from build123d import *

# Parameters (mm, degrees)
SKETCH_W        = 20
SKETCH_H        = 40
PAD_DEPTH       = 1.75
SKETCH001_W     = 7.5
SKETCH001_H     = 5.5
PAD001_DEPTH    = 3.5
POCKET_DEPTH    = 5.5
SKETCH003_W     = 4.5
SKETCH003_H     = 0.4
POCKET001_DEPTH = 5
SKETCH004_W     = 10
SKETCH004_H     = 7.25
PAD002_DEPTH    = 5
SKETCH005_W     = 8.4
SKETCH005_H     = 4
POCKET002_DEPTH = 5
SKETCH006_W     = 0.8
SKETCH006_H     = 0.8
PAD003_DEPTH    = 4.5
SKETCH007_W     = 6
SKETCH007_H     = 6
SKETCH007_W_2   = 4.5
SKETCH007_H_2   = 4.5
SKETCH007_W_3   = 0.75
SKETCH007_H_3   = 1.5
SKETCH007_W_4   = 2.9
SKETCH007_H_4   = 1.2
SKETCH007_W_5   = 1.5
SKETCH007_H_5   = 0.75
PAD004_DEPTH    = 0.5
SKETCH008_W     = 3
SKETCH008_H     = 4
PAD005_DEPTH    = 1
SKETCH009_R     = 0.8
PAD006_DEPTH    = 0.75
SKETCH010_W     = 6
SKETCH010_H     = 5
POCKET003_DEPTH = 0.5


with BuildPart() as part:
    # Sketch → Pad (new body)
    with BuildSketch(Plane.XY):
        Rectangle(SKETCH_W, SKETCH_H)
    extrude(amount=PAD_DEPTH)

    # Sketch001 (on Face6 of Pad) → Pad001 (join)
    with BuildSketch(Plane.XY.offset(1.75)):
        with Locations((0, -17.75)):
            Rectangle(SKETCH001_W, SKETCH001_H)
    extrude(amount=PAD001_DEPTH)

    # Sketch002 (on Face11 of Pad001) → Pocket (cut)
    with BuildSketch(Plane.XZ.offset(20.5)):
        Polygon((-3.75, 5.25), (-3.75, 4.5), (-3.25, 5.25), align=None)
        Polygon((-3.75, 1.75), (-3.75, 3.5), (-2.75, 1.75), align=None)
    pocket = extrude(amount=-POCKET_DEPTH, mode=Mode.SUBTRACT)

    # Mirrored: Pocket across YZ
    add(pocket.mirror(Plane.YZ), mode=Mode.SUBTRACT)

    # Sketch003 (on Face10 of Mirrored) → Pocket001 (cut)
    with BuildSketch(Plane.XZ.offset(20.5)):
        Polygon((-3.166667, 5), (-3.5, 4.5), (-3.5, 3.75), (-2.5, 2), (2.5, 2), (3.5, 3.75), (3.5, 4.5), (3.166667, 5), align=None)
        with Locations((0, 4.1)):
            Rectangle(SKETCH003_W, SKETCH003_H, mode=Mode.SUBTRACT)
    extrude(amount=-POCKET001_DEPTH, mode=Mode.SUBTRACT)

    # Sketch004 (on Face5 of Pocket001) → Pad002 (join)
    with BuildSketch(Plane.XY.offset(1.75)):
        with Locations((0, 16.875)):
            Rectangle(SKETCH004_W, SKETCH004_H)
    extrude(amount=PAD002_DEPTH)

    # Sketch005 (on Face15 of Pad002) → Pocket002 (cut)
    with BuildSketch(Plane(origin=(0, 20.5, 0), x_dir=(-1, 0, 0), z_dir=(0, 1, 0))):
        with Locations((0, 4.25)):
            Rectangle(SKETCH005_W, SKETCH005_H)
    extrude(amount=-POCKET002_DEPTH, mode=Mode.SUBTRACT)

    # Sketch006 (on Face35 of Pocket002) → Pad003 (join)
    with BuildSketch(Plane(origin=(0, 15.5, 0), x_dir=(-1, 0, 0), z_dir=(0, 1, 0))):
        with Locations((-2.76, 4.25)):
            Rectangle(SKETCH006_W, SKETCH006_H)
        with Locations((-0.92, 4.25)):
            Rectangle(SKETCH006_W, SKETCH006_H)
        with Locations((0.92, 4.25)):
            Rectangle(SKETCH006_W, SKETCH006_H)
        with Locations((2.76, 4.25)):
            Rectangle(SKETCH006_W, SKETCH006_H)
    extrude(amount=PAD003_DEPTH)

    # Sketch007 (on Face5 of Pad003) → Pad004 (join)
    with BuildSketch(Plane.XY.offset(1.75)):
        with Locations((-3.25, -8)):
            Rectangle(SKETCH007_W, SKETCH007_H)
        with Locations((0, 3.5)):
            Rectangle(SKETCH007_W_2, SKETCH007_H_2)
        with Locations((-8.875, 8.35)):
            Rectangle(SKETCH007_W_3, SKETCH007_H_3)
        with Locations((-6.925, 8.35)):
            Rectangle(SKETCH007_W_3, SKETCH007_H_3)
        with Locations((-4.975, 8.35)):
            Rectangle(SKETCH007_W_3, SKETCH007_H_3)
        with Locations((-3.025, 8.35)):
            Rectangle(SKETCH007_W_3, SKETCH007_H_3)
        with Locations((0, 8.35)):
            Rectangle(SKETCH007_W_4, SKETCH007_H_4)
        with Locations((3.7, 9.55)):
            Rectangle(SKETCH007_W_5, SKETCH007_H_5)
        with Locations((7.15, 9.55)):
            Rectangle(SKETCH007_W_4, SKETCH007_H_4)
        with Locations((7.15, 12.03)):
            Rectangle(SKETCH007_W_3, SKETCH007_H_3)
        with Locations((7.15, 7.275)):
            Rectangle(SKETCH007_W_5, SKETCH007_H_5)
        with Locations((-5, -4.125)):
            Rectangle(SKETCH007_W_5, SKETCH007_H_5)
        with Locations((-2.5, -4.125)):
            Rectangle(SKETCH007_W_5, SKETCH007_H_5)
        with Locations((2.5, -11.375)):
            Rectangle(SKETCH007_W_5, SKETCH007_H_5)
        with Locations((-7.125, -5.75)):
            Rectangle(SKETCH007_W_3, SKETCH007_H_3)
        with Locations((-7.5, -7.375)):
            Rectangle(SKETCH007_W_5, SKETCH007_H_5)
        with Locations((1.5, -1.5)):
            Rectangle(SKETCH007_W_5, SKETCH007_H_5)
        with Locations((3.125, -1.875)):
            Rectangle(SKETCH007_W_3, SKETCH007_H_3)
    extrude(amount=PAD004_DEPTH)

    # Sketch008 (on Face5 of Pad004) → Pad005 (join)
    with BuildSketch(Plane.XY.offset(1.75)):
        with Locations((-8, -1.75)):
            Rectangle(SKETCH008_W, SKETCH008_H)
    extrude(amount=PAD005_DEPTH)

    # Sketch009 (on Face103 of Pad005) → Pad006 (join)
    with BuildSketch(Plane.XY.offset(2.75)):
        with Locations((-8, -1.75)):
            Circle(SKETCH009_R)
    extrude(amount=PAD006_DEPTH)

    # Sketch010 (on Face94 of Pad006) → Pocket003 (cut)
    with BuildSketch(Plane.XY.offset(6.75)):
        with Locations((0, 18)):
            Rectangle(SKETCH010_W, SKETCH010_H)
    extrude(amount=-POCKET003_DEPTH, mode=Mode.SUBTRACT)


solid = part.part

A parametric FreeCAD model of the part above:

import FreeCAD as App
import Part
import Sketcher

V = App.Vector
Q = App.Units.Quantity

doc = App.newDocument("Part")
body = doc.addObject("PartDesign::Body", "Body")

# Sketch on XY plane
sketch1 = doc.addObject("Sketcher::SketchObject", "Sketch")
body.addObject(sketch1)
sketch1.AttachmentSupport = (doc.XY_Plane, [""])
sketch1.MapMode = "FlatFace"
sketch1.addGeometry([
    Part.LineSegment(V(-10, 20, 0), V(-10, -20, 0)),
    Part.LineSegment(V(-10, -20, 0), V(10, -20, 0)),
    Part.LineSegment(V(10, -20, 0), V(10, 20, 0)),
    Part.LineSegment(V(10, 20, 0), V(-10, 20, 0)),
], False)
sketch1.addConstraint([
    Sketcher.Constraint("Coincident", 0, 2, 1, 1),
    Sketcher.Constraint("Coincident", 1, 2, 2, 1),
    Sketcher.Constraint("Coincident", 2, 2, 3, 1),
    Sketcher.Constraint("Coincident", 3, 2, 0, 1),
    Sketcher.Constraint("Vertical", 0),
    Sketcher.Constraint("Horizontal", 1),
    Sketcher.Constraint("Vertical", 2),
    Sketcher.Constraint("Horizontal", 3),
    Sketcher.Constraint("Symmetric", 0, 2, 2, 2, -1, 1),
    Sketcher.Constraint("DistanceX", 1, 1, 1, 2, Q("20 mm")),
    Sketcher.Constraint("DistanceY", 0, 2, 0, 1, Q("40 mm")),
])
pad1 = doc.addObject("PartDesign::Pad", "Pad")
body.addObject(pad1)
pad1.Profile = sketch1
pad1.Length = 1.75

# Sketch on XY plane
sketch2 = doc.addObject("Sketcher::SketchObject", "Sketch001")
body.addObject(sketch2)
sketch2.AttachmentSupport = (doc.XY_Plane, [""])
sketch2.MapMode = "FlatFace"
sketch2.AttachmentOffset = App.Placement(V(0, 0, 1.75), App.Rotation())
sketch2.addGeometry([
    Part.LineSegment(V(-4, -15, 0), V(-4, -20, 0)),
    Part.LineSegment(V(-4, -20, 0), V(4, -20, 0)),
    Part.LineSegment(V(4, -20, 0), V(4, -15, 0)),
    Part.LineSegment(V(4, -15, 0), V(-4, -15, 0)),
], False)
sketch2.addConstraint([
    Sketcher.Constraint("Coincident", 0, 2, 1, 1),
    Sketcher.Constraint("Coincident", 1, 2, 2, 1),
    Sketcher.Constraint("Coincident", 2, 2, 3, 1),
    Sketcher.Constraint("Coincident", 3, 2, 0, 1),
    Sketcher.Constraint("Vertical", 0),
    Sketcher.Constraint("Horizontal", 1),
    Sketcher.Constraint("Vertical", 2),
    Sketcher.Constraint("Horizontal", 3),
    Sketcher.Constraint("DistanceX", 1, 1, 1, 2, Q("7.5 mm")),
    Sketcher.Constraint("DistanceY", 0, 2, 0, 1, Q("5.5 mm")),
    Sketcher.Constraint("DistanceY", 2, 2, -1, 1, Q("15 mm")),
    Sketcher.Constraint("DistanceX", 0, 2, -1, 1, Q("3.75 mm")),
])
pad2 = doc.addObject("PartDesign::Pad", "Pad001")
body.addObject(pad2)
pad2.Profile = sketch2
pad2.Length = 3.5

# Sketch on XZ plane
sketch3 = doc.addObject("Sketcher::SketchObject", "Sketch002")
body.addObject(sketch3)
sketch3.AttachmentSupport = (doc.XZ_Plane, [""])
sketch3.MapMode = "FlatFace"
sketch3.AttachmentOffset = App.Placement(V(0, 0, 20.5), App.Rotation())
sketch3.addGeometry([
    Part.LineSegment(V(-3.8, 5.2, 0), V(-3.8, 4.5, 0)),  # 0
    Part.LineSegment(V(-3.8, 4.5, 0), V(-3.2, 5.2, 0)),  # 1
    Part.LineSegment(V(-3.2, 5.2, 0), V(-3.8, 5.2, 0)),  # 2
    Part.LineSegment(V(-3.8, 3.5, 0), V(-3.8, 1.8, 0)),  # 3
    Part.LineSegment(V(-3.8, 1.8, 0), V(-2.8, 1.8, 0)),  # 4
    Part.LineSegment(V(-2.8, 1.8, 0), V(-3.8, 3.5, 0)),  # 5
], False)
sketch3.addConstraint([
    Sketcher.Constraint("Coincident", 0, 2, 1, 1),
    Sketcher.Constraint("Coincident", 1, 2, 2, 1),
    Sketcher.Constraint("Coincident", 2, 2, 0, 1),
    Sketcher.Constraint("Coincident", 3, 2, 4, 1),
    Sketcher.Constraint("Coincident", 4, 2, 5, 1),
    Sketcher.Constraint("Coincident", 5, 2, 3, 1),
    Sketcher.Constraint("Vertical", 0),
    Sketcher.Constraint("Horizontal", 2),
    Sketcher.Constraint("Vertical", 3),
    Sketcher.Constraint("Horizontal", 4),
    Sketcher.Constraint("Vertical", 2, 2, 3, 2),
    Sketcher.Constraint("DistanceX", 4, 1, 4, 2, Q("1 mm")),
    Sketcher.Constraint("DistanceX", 2, 2, 2, 1, Q("0.5 mm")),
    Sketcher.Constraint("DistanceY", 5, 2, 0, 2, Q("1 mm")),
    Sketcher.Constraint("DistanceY", 0, 2, 0, 1, Q("0.75 mm")),
    Sketcher.Constraint("DistanceY", 3, 2, 3, 1, Q("1.75 mm")),
    Sketcher.Constraint("DistanceY", -1, 1, 0, 2, Q("4.5 mm")),
    Sketcher.Constraint("DistanceX", 0, 2, -1, 1, Q("3.75 mm")),
])
pocket1 = doc.addObject("PartDesign::Pocket", "Pocket")
body.addObject(pocket1)
pocket1.Profile = sketch3
pocket1.Length = 5.5
doc.recompute()

mirrored = doc.addObject("PartDesign::Mirrored", "Mirrored")
body.addObject(mirrored)
mirrored.Originals = [pocket1]
mirrored.MirrorPlane = (doc.YZ_Plane, [""])
body.Tip = mirrored

# Sketch on XZ plane
sketch4 = doc.addObject("Sketcher::SketchObject", "Sketch003")
body.addObject(sketch4)
sketch4.AttachmentSupport = (doc.XZ_Plane, [""])
sketch4.MapMode = "FlatFace"
sketch4.AttachmentOffset = App.Placement(V(0, 0, 20.5), App.Rotation())
sketch4.addGeometry([
    Part.LineSegment(V(-3.17, 5, 0), V(-3.5, 4.5, 0)),  # 0
    Part.LineSegment(V(-3.5, 4.5, 0), V(-3.5, 3.75, 0)),  # 1
    Part.LineSegment(V(-3.5, 3.75, 0), V(-2.5, 2, 0)),  # 2
    Part.LineSegment(V(-2.5, 2, 0), V(2.5, 2, 0)),  # 3
    Part.LineSegment(V(2.5, 2, 0), V(3.5, 3.75, 0)),  # 4
    Part.LineSegment(V(3.5, 3.75, 0), V(3.5, 4.5, 0)),  # 5
    Part.LineSegment(V(3.5, 4.5, 0), V(3.17, 5, 0)),  # 6
    Part.LineSegment(V(3.17, 5, 0), V(-3.17, 5, 0)),  # 7
    Part.LineSegment(V(2.25, 3.9, 0), V(-2.25, 3.9, 0)),  # 8
    Part.LineSegment(V(-2.25, 3.9, 0), V(-2.25, 4.3, 0)),  # 9
    Part.LineSegment(V(-2.25, 4.3, 0), V(2.25, 4.3, 0)),  # 10
    Part.LineSegment(V(2.25, 4.3, 0), V(2.25, 3.9, 0)),  # 11
], False)
sketch4.addConstraint([
    Sketcher.Constraint("Coincident", 0, 2, 1, 1),
    Sketcher.Constraint("Coincident", 1, 2, 2, 1),
    Sketcher.Constraint("Coincident", 2, 2, 3, 1),
    Sketcher.Constraint("Coincident", 3, 2, 4, 1),
    Sketcher.Constraint("Coincident", 4, 2, 5, 1),
    Sketcher.Constraint("Coincident", 5, 2, 6, 1),
    Sketcher.Constraint("Coincident", 6, 2, 7, 1),
    Sketcher.Constraint("Coincident", 7, 2, 0, 1),
    Sketcher.Constraint("Coincident", 8, 2, 9, 1),
    Sketcher.Constraint("Coincident", 9, 2, 10, 1),
    Sketcher.Constraint("Coincident", 10, 2, 11, 1),
    Sketcher.Constraint("Coincident", 11, 2, 8, 1),
    Sketcher.Constraint("Vertical", 1),
    Sketcher.Constraint("Horizontal", 3),
    Sketcher.Constraint("Vertical", 5),
    Sketcher.Constraint("Horizontal", 7),
    Sketcher.Constraint("Horizontal", 8),
    Sketcher.Constraint("Vertical", 9),
    Sketcher.Constraint("Horizontal", 10),
    Sketcher.Constraint("Vertical", 11),
    Sketcher.Constraint("Symmetric", 1, 2, 4, 2, -2),
    Sketcher.Constraint("Horizontal", 0, 2, 5, 2),
    Sketcher.Constraint("Equal", 2, 4),
    Sketcher.Constraint("Equal", 0, 6),
    Sketcher.Constraint("DistanceX", 3, 1, 3, 2, Q("5 mm")),
    Sketcher.Constraint("DistanceX", 8, 2, 8, 1, Q("4.5 mm")),
    Sketcher.Constraint("DistanceY", 9, 1, 9, 2, Q("0.4 mm")),
    Sketcher.Constraint("DistanceY", -1, 1, 2, 2, Q("2 mm")),
    Sketcher.Constraint("DistanceY", -1, 1, 6, 2, Q("5 mm")),
    Sketcher.Constraint("DistanceX", 1, 2, 2, 2, Q("1 mm")),
    Sketcher.Constraint("DistanceY", 1, 2, 1, 1, Q("0.75 mm")),
    Sketcher.Constraint("DistanceY", -1, 1, 0, 2, Q("4.5 mm")),
    Sketcher.Constraint("DistanceY", -1, 1, 8, 2, Q("3.9 mm")),
    Sketcher.Constraint("DistanceX", 8, 2, -1, 1, Q("2.25 mm")),
    Sketcher.Constraint("DistanceX", 7, 2, 7, 1, Q("6.333334 mm")),
])
pocket2 = doc.addObject("PartDesign::Pocket", "Pocket001")
body.addObject(pocket2)
pocket2.Profile = sketch4
pocket2.Length = 5

# Sketch on XY plane
sketch5 = doc.addObject("Sketcher::SketchObject", "Sketch004")
body.addObject(sketch5)
sketch5.AttachmentSupport = (doc.XY_Plane, [""])
sketch5.MapMode = "FlatFace"
sketch5.AttachmentOffset = App.Placement(V(0, 0, 1.75), App.Rotation())
sketch5.addGeometry([
    Part.LineSegment(V(-5, 20, 0), V(-5, 13, 0)),
    Part.LineSegment(V(-5, 13, 0), V(5, 13, 0)),
    Part.LineSegment(V(5, 13, 0), V(5, 20, 0)),
    Part.LineSegment(V(5, 20, 0), V(-5, 20, 0)),
], False)
sketch5.addConstraint([
    Sketcher.Constraint("Coincident", 0, 2, 1, 1),
    Sketcher.Constraint("Coincident", 1, 2, 2, 1),
    Sketcher.Constraint("Coincident", 2, 2, 3, 1),
    Sketcher.Constraint("Coincident", 3, 2, 0, 1),
    Sketcher.Constraint("Vertical", 0),
    Sketcher.Constraint("Horizontal", 1),
    Sketcher.Constraint("Vertical", 2),
    Sketcher.Constraint("Horizontal", 3),
    Sketcher.Constraint("DistanceX", 1, 1, 1, 2, Q("10 mm")),
    Sketcher.Constraint("DistanceX", 0, 2, -1, 1, Q("5 mm")),
    Sketcher.Constraint("DistanceY", 0, 2, 0, 1, Q("7.25 mm")),
    Sketcher.Constraint("DistanceY", -1, 1, 2, 2, Q("20.5 mm")),
])
pad3 = doc.addObject("PartDesign::Pad", "Pad002")
body.addObject(pad3)
pad3.Profile = sketch5
pad3.Length = 5

# Sketch on XZ plane
sketch6 = doc.addObject("Sketcher::SketchObject", "Sketch005")
body.addObject(sketch6)
sketch6.AttachmentSupport = (doc.XZ_Plane, [""])
sketch6.MapMode = "FlatFace"
sketch6.AttachmentOffset = App.Placement(V(0, 0, -20.5), App.Rotation())
sketch6.addGeometry([
    Part.LineSegment(V(4.2, 6.2, 0), V(4.2, 2.2, 0)),
    Part.LineSegment(V(4.2, 2.2, 0), V(-4.2, 2.2, 0)),
    Part.LineSegment(V(-4.2, 2.2, 0), V(-4.2, 6.2, 0)),
    Part.LineSegment(V(-4.2, 6.2, 0), V(4.2, 6.2, 0)),
], False)
sketch6.addConstraint([
    Sketcher.Constraint("Coincident", 0, 2, 1, 1),
    Sketcher.Constraint("Coincident", 1, 2, 2, 1),
    Sketcher.Constraint("Coincident", 2, 2, 3, 1),
    Sketcher.Constraint("Coincident", 3, 2, 0, 1),
    Sketcher.Constraint("Vertical", 0),
    Sketcher.Constraint("Horizontal", 1),
    Sketcher.Constraint("Vertical", 2),
    Sketcher.Constraint("Horizontal", 3),
    Sketcher.Constraint("DistanceY", 0, 2, 0, 1, Q("4 mm")),
    Sketcher.Constraint("DistanceX", 1, 2, 1, 1, Q("8.4 mm")),
    Sketcher.Constraint("DistanceX", -1, 1, 0, 2, Q("4.2 mm")),
    Sketcher.Constraint("DistanceY", -1, 1, 0, 2, Q("2.25 mm")),
])
pocket3 = doc.addObject("PartDesign::Pocket", "Pocket002")
body.addObject(pocket3)
pocket3.Profile = sketch6
pocket3.Length = 5
pocket3.Reversed = True

# Sketch on XZ plane
sketch7 = doc.addObject("Sketcher::SketchObject", "Sketch006")
body.addObject(sketch7)
sketch7.AttachmentSupport = (doc.XZ_Plane, [""])
sketch7.MapMode = "FlatFace"
sketch7.AttachmentOffset = App.Placement(V(0, 0, -15.5), App.Rotation())
sketch7.addGeometry([
    Part.LineSegment(V(3.2, 4.7, 0), V(3.2, 3.9, 0)),  # 0
    Part.LineSegment(V(3.2, 3.9, 0), V(2.4, 3.9, 0)),  # 1
    Part.LineSegment(V(2.4, 3.9, 0), V(2.4, 4.7, 0)),  # 2
    Part.LineSegment(V(2.4, 4.7, 0), V(3.2, 4.7, 0)),  # 3
    Part.LineSegment(V(1.3, 4.7, 0), V(1.3, 3.9, 0)),  # 4
    Part.LineSegment(V(1.3, 3.9, 0), V(0.5, 3.9, 0)),  # 5
    Part.LineSegment(V(0.5, 3.9, 0), V(0.5, 4.7, 0)),  # 6
    Part.LineSegment(V(0.5, 4.7, 0), V(1.3, 4.7, 0)),  # 7
    Part.LineSegment(V(-0.5, 4.7, 0), V(-0.5, 3.9, 0)),  # 8
    Part.LineSegment(V(-0.5, 3.9, 0), V(-1.3, 3.9, 0)),  # 9
    Part.LineSegment(V(-1.3, 3.9, 0), V(-1.3, 4.7, 0)),  # 10
    Part.LineSegment(V(-1.3, 4.7, 0), V(-0.5, 4.7, 0)),  # 11
    Part.LineSegment(V(-2.4, 4.7, 0), V(-2.4, 3.9, 0)),  # 12
    Part.LineSegment(V(-2.4, 3.9, 0), V(-3.2, 3.9, 0)),  # 13
    Part.LineSegment(V(-3.2, 3.9, 0), V(-3.2, 4.7, 0)),  # 14
    Part.LineSegment(V(-3.2, 4.7, 0), V(-2.4, 4.7, 0)),  # 15
], False)
sketch7.addConstraint([
    Sketcher.Constraint("Coincident", 0, 2, 1, 1),
    Sketcher.Constraint("Coincident", 1, 2, 2, 1),
    Sketcher.Constraint("Coincident", 2, 2, 3, 1),
    Sketcher.Constraint("Coincident", 3, 2, 0, 1),
    Sketcher.Constraint("Coincident", 4, 2, 5, 1),
    Sketcher.Constraint("Coincident", 5, 2, 6, 1),
    Sketcher.Constraint("Coincident", 6, 2, 7, 1),
    Sketcher.Constraint("Coincident", 7, 2, 4, 1),
    Sketcher.Constraint("Coincident", 8, 2, 9, 1),
    Sketcher.Constraint("Coincident", 9, 2, 10, 1),
    Sketcher.Constraint("Coincident", 10, 2, 11, 1),
    Sketcher.Constraint("Coincident", 11, 2, 8, 1),
    Sketcher.Constraint("Coincident", 12, 2, 13, 1),
    Sketcher.Constraint("Coincident", 13, 2, 14, 1),
    Sketcher.Constraint("Coincident", 14, 2, 15, 1),
    Sketcher.Constraint("Coincident", 15, 2, 12, 1),
    Sketcher.Constraint("Vertical", 0),
    Sketcher.Constraint("Horizontal", 1),
    Sketcher.Constraint("Vertical", 2),
    Sketcher.Constraint("Horizontal", 3),
    Sketcher.Constraint("Vertical", 4),
    Sketcher.Constraint("Horizontal", 5),
    Sketcher.Constraint("Vertical", 6),
    Sketcher.Constraint("Horizontal", 7),
    Sketcher.Constraint("Vertical", 8),
    Sketcher.Constraint("Horizontal", 9),
    Sketcher.Constraint("Vertical", 10),
    Sketcher.Constraint("Horizontal", 11),
    Sketcher.Constraint("Vertical", 12),
    Sketcher.Constraint("Horizontal", 13),
    Sketcher.Constraint("Vertical", 14),
    Sketcher.Constraint("Horizontal", 15),
    Sketcher.Constraint("Symmetric", 5, 2, 8, 2, -2),
    Sketcher.Constraint("Symmetric", 7, 2, 10, 2, -2),
    Sketcher.Constraint("Symmetric", 1, 2, 12, 2, -2),
    Sketcher.Constraint("Symmetric", 3, 2, 14, 2, -2),
    Sketcher.Constraint("Horizontal", 1, 2, 4, 2),
    Sketcher.Constraint("Horizontal", 3, 2, 6, 2),
    Sketcher.Constraint("Equal", 3, 5),
    Sketcher.Constraint("Equal", 15, 0),
    Sketcher.Constraint("DistanceX", 1, 2, 1, 1, Q("0.8 mm")),
    Sketcher.Constraint("DistanceX", -1, 1, 0, 2, Q("3.16 mm")),
    Sketcher.Constraint("DistanceY", -1, 1, 0, 2, Q("3.85 mm")),
    Sketcher.Constraint("DistanceX", -1, 1, 4, 2, Q("1.32 mm")),
])
pad4 = doc.addObject("PartDesign::Pad", "Pad003")
body.addObject(pad4)
pad4.Profile = sketch7
pad4.Length = 4.5
pad4.Reversed = True

# Sketch on XY plane
sketch8 = doc.addObject("Sketcher::SketchObject", "Sketch007")
body.addObject(sketch8)
sketch8.AttachmentSupport = (doc.XY_Plane, [""])
sketch8.MapMode = "FlatFace"
sketch8.AttachmentOffset = App.Placement(V(0, 0, 1.75), App.Rotation())
sketch8.addGeometry([
    Part.LineSegment(V(-6.2, -5, 0), V(-6.2, -11, 0)),  # 0
    Part.LineSegment(V(-6.2, -11, 0), V(-0.2, -11, 0)),  # 1
    Part.LineSegment(V(-0.2, -11, 0), V(-0.2, -5, 0)),  # 2
    Part.LineSegment(V(-0.2, -5, 0), V(-6.2, -5, 0)),  # 3
    Part.LineSegment(V(-2.2, 5.8, 0), V(-2.2, 1.2, 0)),  # 4
    Part.LineSegment(V(-2.2, 1.2, 0), V(2.2, 1.2, 0)),  # 5
    Part.LineSegment(V(2.2, 1.2, 0), V(2.2, 5.8, 0)),  # 6
    Part.LineSegment(V(2.2, 5.8, 0), V(-2.2, 5.8, 0)),  # 7
    Part.LineSegment(V(-9.2, 9.1, 0), V(-9.2, 7.6, 0)),  # 8
    Part.LineSegment(V(-9.2, 7.6, 0), V(-8.5, 7.6, 0)),  # 9
    Part.LineSegment(V(-8.5, 7.6, 0), V(-8.5, 9.1, 0)),  # 10
    Part.LineSegment(V(-8.5, 9.1, 0), V(-9.2, 9.1, 0)),  # 11
    Part.LineSegment(V(-7.3, 9.1, 0), V(-7.3, 7.6, 0)),  # 12
    Part.LineSegment(V(-7.3, 7.6, 0), V(-6.5, 7.6, 0)),  # 13
    Part.LineSegment(V(-6.5, 7.6, 0), V(-6.5, 9.1, 0)),  # 14
    Part.LineSegment(V(-6.5, 9.1, 0), V(-7.3, 9.1, 0)),  # 15
    Part.LineSegment(V(-5.3, 9.1, 0), V(-5.3, 7.6, 0)),  # 16
    Part.LineSegment(V(-5.3, 7.6, 0), V(-4.6, 7.6, 0)),  # 17
    Part.LineSegment(V(-4.6, 7.6, 0), V(-4.6, 9.1, 0)),  # 18
    Part.LineSegment(V(-4.6, 9.1, 0), V(-5.3, 9.1, 0)),  # 19
    Part.LineSegment(V(-3.4, 9.1, 0), V(-3.4, 7.6, 0)),  # 20
    Part.LineSegment(V(-3.4, 7.6, 0), V(-2.6, 7.6, 0)),  # 21
    Part.LineSegment(V(-2.6, 7.6, 0), V(-2.6, 9.1, 0)),  # 22
    Part.LineSegment(V(-2.6, 9.1, 0), V(-3.4, 9.1, 0)),  # 23
    Part.LineSegment(V(-1.4, 8.9, 0), V(-1.4, 7.8, 0)),  # 24
    Part.LineSegment(V(-1.4, 7.8, 0), V(1.4, 7.8, 0)),  # 25
    Part.LineSegment(V(1.4, 7.8, 0), V(1.4, 8.9, 0)),  # 26
    Part.LineSegment(V(1.4, 8.9, 0), V(-1.4, 8.9, 0)),  # 27
    Part.LineSegment(V(3, 9.9, 0), V(3, 9.2, 0)),  # 28
    Part.LineSegment(V(3, 9.2, 0), V(4.5, 9.2, 0)),  # 29
    Part.LineSegment(V(4.5, 9.2, 0), V(4.5, 9.9, 0)),  # 30
    Part.LineSegment(V(4.5, 9.9, 0), V(3, 9.9, 0)),  # 31
    Part.LineSegment(V(5.7, 10.2, 0), V(5.7, 8.9, 0)),  # 32
    Part.LineSegment(V(5.7, 8.9, 0), V(8.6, 8.9, 0)),  # 33
    Part.LineSegment(V(8.6, 8.9, 0), V(8.6, 10.2, 0)),  # 34
    Part.LineSegment(V(8.6, 10.2, 0), V(5.7, 10.2, 0)),  # 35
    Part.LineSegment(V(6.8, 12.8, 0), V(6.8, 11.3, 0)),  # 36
    Part.LineSegment(V(6.8, 11.3, 0), V(7.5, 11.3, 0)),  # 37
    Part.LineSegment(V(7.5, 11.3, 0), V(7.5, 12.8, 0)),  # 38
    Part.LineSegment(V(7.5, 12.8, 0), V(6.8, 12.8, 0)),  # 39
    Part.LineSegment(V(6.4, 7.7, 0), V(6.4, 6.9, 0)),  # 40
    Part.LineSegment(V(6.4, 6.9, 0), V(7.9, 6.9, 0)),  # 41
    Part.LineSegment(V(7.9, 6.9, 0), V(7.9, 7.7, 0)),  # 42
    Part.LineSegment(V(7.9, 7.7, 0), V(6.4, 7.7, 0)),  # 43
    Part.LineSegment(V(-5.8, -3.8, 0), V(-5.8, -4.5, 0)),  # 44
    Part.LineSegment(V(-5.8, -4.5, 0), V(-4.2, -4.5, 0)),  # 45
    Part.LineSegment(V(-4.2, -4.5, 0), V(-4.2, -3.8, 0)),  # 46
    Part.LineSegment(V(-4.2, -3.8, 0), V(-5.8, -3.8, 0)),  # 47
    Part.LineSegment(V(-3.2, -3.8, 0), V(-3.2, -4.5, 0)),  # 48
    Part.LineSegment(V(-3.2, -4.5, 0), V(-1.8, -4.5, 0)),  # 49
    Part.LineSegment(V(-1.8, -4.5, 0), V(-1.8, -3.8, 0)),  # 50
    Part.LineSegment(V(-1.8, -3.8, 0), V(-3.2, -3.8, 0)),  # 51
    Part.LineSegment(V(1.8, -11, 0), V(1.8, -11.8, 0)),  # 52
    Part.LineSegment(V(1.8, -11.8, 0), V(3.2, -11.8, 0)),  # 53
    Part.LineSegment(V(3.2, -11.8, 0), V(3.2, -11, 0)),  # 54
    Part.LineSegment(V(3.2, -11, 0), V(1.8, -11, 0)),  # 55
    Part.LineSegment(V(-7.5, -5, 0), V(-7.5, -6.5, 0)),  # 56
    Part.LineSegment(V(-7.5, -6.5, 0), V(-6.8, -6.5, 0)),  # 57
    Part.LineSegment(V(-6.8, -6.5, 0), V(-6.8, -5, 0)),  # 58
    Part.LineSegment(V(-6.8, -5, 0), V(-7.5, -5, 0)),  # 59
    Part.LineSegment(V(-8.2, -7, 0), V(-8.2, -7.8, 0)),  # 60
    Part.LineSegment(V(-8.2, -7.8, 0), V(-6.8, -7.8, 0)),  # 61
    Part.LineSegment(V(-6.8, -7.8, 0), V(-6.8, -7, 0)),  # 62
    Part.LineSegment(V(-6.8, -7, 0), V(-8.2, -7, 0)),  # 63
    Part.LineSegment(V(0.8, -1.1, 0), V(0.8, -1.9, 0)),  # 64
    Part.LineSegment(V(0.8, -1.9, 0), V(2.2, -1.9, 0)),  # 65
    Part.LineSegment(V(2.2, -1.9, 0), V(2.2, -1.1, 0)),  # 66
    Part.LineSegment(V(2.2, -1.1, 0), V(0.8, -1.1, 0)),  # 67
    Part.LineSegment(V(2.8, -1.1, 0), V(2.8, -2.6, 0)),  # 68
    Part.LineSegment(V(2.8, -2.6, 0), V(3.5, -2.6, 0)),  # 69
    Part.LineSegment(V(3.5, -2.6, 0), V(3.5, -1.1, 0)),  # 70
    Part.LineSegment(V(3.5, -1.1, 0), V(2.8, -1.1, 0)),  # 71
], False)
sketch8.addConstraint([
    Sketcher.Constraint("Coincident", 0, 2, 1, 1),
    Sketcher.Constraint("Coincident", 1, 2, 2, 1),
    Sketcher.Constraint("Coincident", 2, 2, 3, 1),
    Sketcher.Constraint("Coincident", 3, 2, 0, 1),
    Sketcher.Constraint("Coincident", 4, 2, 5, 1),
    Sketcher.Constraint("Coincident", 5, 2, 6, 1),
    Sketcher.Constraint("Coincident", 6, 2, 7, 1),
    Sketcher.Constraint("Coincident", 7, 2, 4, 1),
    Sketcher.Constraint("Coincident", 8, 2, 9, 1),
    Sketcher.Constraint("Coincident", 9, 2, 10, 1),
    Sketcher.Constraint("Coincident", 10, 2, 11, 1),
    Sketcher.Constraint("Coincident", 11, 2, 8, 1),
    Sketcher.Constraint("Coincident", 12, 2, 13, 1),
    Sketcher.Constraint("Coincident", 13, 2, 14, 1),
    Sketcher.Constraint("Coincident", 14, 2, 15, 1),
    Sketcher.Constraint("Coincident", 15, 2, 12, 1),
    Sketcher.Constraint("Coincident", 16, 2, 17, 1),
    Sketcher.Constraint("Coincident", 17, 2, 18, 1),
    Sketcher.Constraint("Coincident", 18, 2, 19, 1),
    Sketcher.Constraint("Coincident", 19, 2, 16, 1),
    Sketcher.Constraint("Coincident", 20, 2, 21, 1),
    Sketcher.Constraint("Coincident", 21, 2, 22, 1),
    Sketcher.Constraint("Coincident", 22, 2, 23, 1),
    Sketcher.Constraint("Coincident", 23, 2, 20, 1),
    Sketcher.Constraint("Coincident", 24, 2, 25, 1),
    Sketcher.Constraint("Coincident", 25, 2, 26, 1),
    Sketcher.Constraint("Coincident", 26, 2, 27, 1),
    Sketcher.Constraint("Coincident", 27, 2, 24, 1),
    Sketcher.Constraint("Coincident", 28, 2, 29, 1),
    Sketcher.Constraint("Coincident", 29, 2, 30, 1),
    Sketcher.Constraint("Coincident", 30, 2, 31, 1),
    Sketcher.Constraint("Coincident", 31, 2, 28, 1),
    Sketcher.Constraint("Coincident", 32, 2, 33, 1),
    Sketcher.Constraint("Coincident", 33, 2, 34, 1),
    Sketcher.Constraint("Coincident", 34, 2, 35, 1),
    Sketcher.Constraint("Coincident", 35, 2, 32, 1),
    Sketcher.Constraint("Coincident", 36, 2, 37, 1),
    Sketcher.Constraint("Coincident", 37, 2, 38, 1),
    Sketcher.Constraint("Coincident", 38, 2, 39, 1),
    Sketcher.Constraint("Coincident", 39, 2, 36, 1),
    Sketcher.Constraint("Coincident", 40, 2, 41, 1),
    Sketcher.Constraint("Coincident", 41, 2, 42, 1),
    Sketcher.Constraint("Coincident", 42, 2, 43, 1),
    Sketcher.Constraint("Coincident", 43, 2, 40, 1),
    Sketcher.Constraint("Coincident", 44, 2, 45, 1),
    Sketcher.Constraint("Coincident", 45, 2, 46, 1),
    Sketcher.Constraint("Coincident", 46, 2, 47, 1),
    Sketcher.Constraint("Coincident", 47, 2, 44, 1),
    Sketcher.Constraint("Coincident", 48, 2, 49, 1),
    Sketcher.Constraint("Coincident", 49, 2, 50, 1),
    Sketcher.Constraint("Coincident", 50, 2, 51, 1),
    Sketcher.Constraint("Coincident", 51, 2, 48, 1),
    Sketcher.Constraint("Coincident", 52, 2, 53, 1),
    Sketcher.Constraint("Coincident", 53, 2, 54, 1),
    Sketcher.Constraint("Coincident", 54, 2, 55, 1),
    Sketcher.Constraint("Coincident", 55, 2, 52, 1),
    Sketcher.Constraint("Coincident", 56, 2, 57, 1),
    Sketcher.Constraint("Coincident", 57, 2, 58, 1),
    Sketcher.Constraint("Coincident", 58, 2, 59, 1),
    Sketcher.Constraint("Coincident", 59, 2, 56, 1),
    Sketcher.Constraint("Coincident", 60, 2, 61, 1),
    Sketcher.Constraint("Coincident", 61, 2, 62, 1),
    Sketcher.Constraint("Coincident", 62, 2, 63, 1),
    Sketcher.Constraint("Coincident", 63, 2, 60, 1),
    Sketcher.Constraint("Coincident", 64, 2, 65, 1),
    Sketcher.Constraint("Coincident", 65, 2, 66, 1),
    Sketcher.Constraint("Coincident", 66, 2, 67, 1),
    Sketcher.Constraint("Coincident", 67, 2, 64, 1),
    Sketcher.Constraint("Coincident", 68, 2, 69, 1),
    Sketcher.Constraint("Coincident", 69, 2, 70, 1),
    Sketcher.Constraint("Coincident", 70, 2, 71, 1),
    Sketcher.Constraint("Coincident", 71, 2, 68, 1),
    Sketcher.Constraint("Vertical", 0),
    Sketcher.Constraint("Horizontal", 1),
    Sketcher.Constraint("Vertical", 2),
    Sketcher.Constraint("Horizontal", 3),
    Sketcher.Constraint("Vertical", 4),
    Sketcher.Constraint("Horizontal", 5),
    Sketcher.Constraint("Vertical", 6),
    Sketcher.Constraint("Horizontal", 7),
    Sketcher.Constraint("Vertical", 8),
    Sketcher.Constraint("Horizontal", 9),
    Sketcher.Constraint("Vertical", 10),
    Sketcher.Constraint("Horizontal", 11),
    Sketcher.Constraint("Vertical", 12),
    Sketcher.Constraint("Horizontal", 13),
    Sketcher.Constraint("Vertical", 14),
    Sketcher.Constraint("Horizontal", 15),
    Sketcher.Constraint("Vertical", 16),
    Sketcher.Constraint("Horizontal", 17),
    Sketcher.Constraint("Vertical", 18),
    Sketcher.Constraint("Horizontal", 19),
    Sketcher.Constraint("Vertical", 20),
    Sketcher.Constraint("Horizontal", 21),
    Sketcher.Constraint("Vertical", 22),
    Sketcher.Constraint("Horizontal", 23),
    Sketcher.Constraint("Vertical", 24),
    Sketcher.Constraint("Horizontal", 25),
    Sketcher.Constraint("Vertical", 26),
    Sketcher.Constraint("Horizontal", 27),
    Sketcher.Constraint("Vertical", 28),
    Sketcher.Constraint("Horizontal", 29),
    Sketcher.Constraint("Vertical", 30),
    Sketcher.Constraint("Horizontal", 31),
    Sketcher.Constraint("Vertical", 32),
    Sketcher.Constraint("Horizontal", 33),
    Sketcher.Constraint("Vertical", 34),
    Sketcher.Constraint("Horizontal", 35),
    Sketcher.Constraint("Vertical", 36),
    Sketcher.Constraint("Horizontal", 37),
    Sketcher.Constraint("Vertical", 38),
    Sketcher.Constraint("Horizontal", 39),
    Sketcher.Constraint("Vertical", 40),
    Sketcher.Constraint("Horizontal", 41),
    Sketcher.Constraint("Vertical", 42),
    Sketcher.Constraint("Horizontal", 43),
    Sketcher.Constraint("Vertical", 44),
    Sketcher.Constraint("Horizontal", 45),
    Sketcher.Constraint("Vertical", 46),
    Sketcher.Constraint("Horizontal", 47),
    Sketcher.Constraint("Vertical", 48),
    Sketcher.Constraint("Horizontal", 49),
    Sketcher.Constraint("Vertical", 50),
    Sketcher.Constraint("Horizontal", 51),
    Sketcher.Constraint("Vertical", 52),
    Sketcher.Constraint("Horizontal", 53),
    Sketcher.Constraint("Vertical", 54),
    Sketcher.Constraint("Horizontal", 55),
    Sketcher.Constraint("Vertical", 56),
    Sketcher.Constraint("Horizontal", 57),
    Sketcher.Constraint("Vertical", 58),
    Sketcher.Constraint("Horizontal", 59),
    Sketcher.Constraint("Vertical", 60),
    Sketcher.Constraint("Horizontal", 61),
    Sketcher.Constraint("Vertical", 62),
    Sketcher.Constraint("Horizontal", 63),
    Sketcher.Constraint("Vertical", 64),
    Sketcher.Constraint("Horizontal", 65),
    Sketcher.Constraint("Vertical", 66),
    Sketcher.Constraint("Horizontal", 67),
    Sketcher.Constraint("Vertical", 68),
    Sketcher.Constraint("Horizontal", 69),
    Sketcher.Constraint("Vertical", 70),
    Sketcher.Constraint("Horizontal", 71),
    Sketcher.Constraint("Horizontal", 9, 2, 12, 2),
    Sketcher.Constraint("Horizontal", 11, 2, 14, 2),
    Sketcher.Constraint("Horizontal", 13, 2, 16, 2),
    Sketcher.Constraint("Horizontal", 15, 2, 18, 2),
    Sketcher.Constraint("Horizontal", 17, 2, 20, 2),
    Sketcher.Constraint("Horizontal", 19, 2, 22, 2),
    Sketcher.Constraint("Horizontal", 27, 2, 32, 2),
    Sketcher.Constraint("Horizontal", 45, 2, 48, 2),
    Sketcher.Constraint("Horizontal", 47, 2, 50, 2),
    Sketcher.Constraint("Horizontal", 1, 2, 54, 2),
    Sketcher.Constraint("Horizontal", 3, 2, 58, 2),
    Sketcher.Constraint("Horizontal", 67, 2, 70, 2),
    Sketcher.Constraint("Vertical", 58, 2, 61, 2),
    Sketcher.Constraint("Vertical", 6, 2, 65, 2),
    Sketcher.Constraint("Equal", 11, 13),
    Sketcher.Constraint("Equal", 15, 17),
    Sketcher.Constraint("Equal", 19, 21),
    Sketcher.Constraint("Equal", 27, 33),
    Sketcher.Constraint("Equal", 23, 37),
    Sketcher.Constraint("Equal", 31, 41),
    Sketcher.Constraint("Equal", 43, 45),
    Sketcher.Constraint("Equal", 47, 49),
    Sketcher.Constraint("Equal", 51, 53),
    Sketcher.Constraint("Equal", 39, 57),
    Sketcher.Constraint("Equal", 55, 61),
    Sketcher.Constraint("Equal", 63, 65),
    Sketcher.Constraint("Equal", 59, 69),
    Sketcher.Constraint("Equal", 3, 0),
    Sketcher.Constraint("Equal", 7, 4),
    Sketcher.Constraint("Equal", 67, 8),
    Sketcher.Constraint("Equal", 71, 28),
    Sketcher.Constraint("Equal", 26, 32),
    Sketcher.Constraint("Equal", 22, 36),
    Sketcher.Constraint("Equal", 30, 40),
    Sketcher.Constraint("Equal", 42, 44),
    Sketcher.Constraint("Equal", 50, 52),
    Sketcher.Constraint("Equal", 38, 56),
    Sketcher.Constraint("Equal", 54, 60),
    Sketcher.Constraint("Equal", 62, 64),
    Sketcher.Constraint("Equal", 58, 68),
    Sketcher.Constraint("DistanceX", 1, 1, 1, 2, Q("6 mm")),
    Sketcher.Constraint("DistanceX", 5, 1, 5, 2, Q("4.5 mm")),
    Sketcher.Constraint("DistanceX", 25, 1, 25, 2, Q("2.9 mm")),
    Sketcher.Constraint("DistanceX", 29, 1, 29, 2, Q("1.5 mm")),
    Sketcher.Constraint("DistanceY", 24, 2, 24, 1, Q("1.2 mm")),
    Sketcher.Constraint("DistanceY", 0, 2, -1, 1, Q("11 mm")),
    Sketcher.Constraint("DistanceY", 62, 2, -1, 1, Q("7 mm")),
    Sketcher.Constraint("DistanceX", 9, 1, 9, 2, Q("0.75 mm")),
    Sketcher.Constraint("DistanceY", -1, 1, 8, 2, Q("7.6 mm")),
    Sketcher.Constraint("DistanceX", 9, 2, -1, 1, Q("8.5 mm")),
    Sketcher.Constraint("DistanceX", 12, 2, -1, 1, Q("7.3 mm")),
    Sketcher.Constraint("DistanceX", 17, 2, -1, 1, Q("4.6 mm")),
    Sketcher.Constraint("DistanceX", 20, 2, -1, 1, Q("3.4 mm")),
    Sketcher.Constraint("DistanceX", -1, 1, 32, 2, Q("5.7 mm")),
    Sketcher.Constraint("DistanceX", -1, 1, 40, 2, Q("6.4 mm")),
    Sketcher.Constraint("DistanceY", -1, 1, 40, 2, Q("6.9 mm")),
    Sketcher.Constraint("DistanceY", 44, 2, -1, 1, Q("4.5 mm")),
    Sketcher.Constraint("DistanceX", 56, 2, -1, 1, Q("7.5 mm")),
    Sketcher.Constraint("DistanceX", -1, 1, 69, 2, Q("3.5 mm")),
    Sketcher.Constraint("DistanceX", 0, 2, -1, 1, Q("6.25 mm")),
    Sketcher.Constraint("DistanceX", 4, 2, -1, 1, Q("2.25 mm")),
    Sketcher.Constraint("DistanceY", -1, 1, 4, 2, Q("1.25 mm")),
    Sketcher.Constraint("DistanceX", 24, 2, -1, 1, Q("1.45 mm")),
    Sketcher.Constraint("DistanceY", -1, 1, 24, 2, Q("7.75 mm")),
    Sketcher.Constraint("DistanceX", -1, 1, 28, 2, Q("2.95 mm")),
    Sketcher.Constraint("DistanceY", -1, 1, 36, 2, Q("11.28 mm")),
    Sketcher.Constraint("DistanceX", 44, 2, -1, 1, Q("5.75 mm")),
    Sketcher.Constraint("DistanceX", 48, 2, -1, 1, Q("3.25 mm")),
    Sketcher.Constraint("DistanceX", -1, 1, 52, 2, Q("1.75 mm")),
    Sketcher.Constraint("DistanceY", -1, 1, 28, 2, Q("9.175 mm")),
    Sketcher.Constraint("DistanceX", -1, 1, 36, 2, Q("6.775 mm")),
    Sketcher.Constraint("DistanceY", 64, 2, -1, 1, Q("1.875 mm")),
])
pad5 = doc.addObject("PartDesign::Pad", "Pad004")
body.addObject(pad5)
pad5.Profile = sketch8
pad5.Length = 0.5

# Sketch on XY plane
sketch9 = doc.addObject("Sketcher::SketchObject", "Sketch008")
body.addObject(sketch9)
sketch9.AttachmentSupport = (doc.XY_Plane, [""])
sketch9.MapMode = "FlatFace"
sketch9.AttachmentOffset = App.Placement(V(0, 0, 1.75), App.Rotation())
sketch9.addGeometry([
    Part.LineSegment(V(-9.5, 0.2, 0), V(-9.5, -3.8, 0)),
    Part.LineSegment(V(-9.5, -3.8, 0), V(-6.5, -3.8, 0)),
    Part.LineSegment(V(-6.5, -3.8, 0), V(-6.5, 0.2, 0)),
    Part.LineSegment(V(-6.5, 0.2, 0), V(-9.5, 0.2, 0)),
], False)
sketch9.addConstraint([
    Sketcher.Constraint("Coincident", 0, 2, 1, 1),
    Sketcher.Constraint("Coincident", 1, 2, 2, 1),
    Sketcher.Constraint("Coincident", 2, 2, 3, 1),
    Sketcher.Constraint("Coincident", 3, 2, 0, 1),
    Sketcher.Constraint("Vertical", 0),
    Sketcher.Constraint("Horizontal", 1),
    Sketcher.Constraint("Vertical", 2),
    Sketcher.Constraint("Horizontal", 3),
    Sketcher.Constraint("DistanceX", 1, 1, 1, 2, Q("3 mm")),
    Sketcher.Constraint("DistanceY", 0, 2, 0, 1, Q("4 mm")),
    Sketcher.Constraint("DistanceX", 0, 2, -1, 1, Q("9.5 mm")),
    Sketcher.Constraint("DistanceY", 0, 2, -1, 1, Q("3.75 mm")),
])
pad6 = doc.addObject("PartDesign::Pad", "Pad005")
body.addObject(pad6)
pad6.Profile = sketch9
pad6.Length = 1

# Sketch on XY plane
sketch10 = doc.addObject("Sketcher::SketchObject", "Sketch009")
body.addObject(sketch10)
sketch10.AttachmentSupport = (doc.XY_Plane, [""])
sketch10.MapMode = "FlatFace"
sketch10.AttachmentOffset = App.Placement(V(0, 0, 2.75), App.Rotation())
sketch10.addGeometry(Part.Circle(V(-8, -1.8, 0), V(0, 0, 1), 0.8), False)
sketch10.addConstraint([
    Sketcher.Constraint("Diameter", 0, Q("1.6 mm")),
    Sketcher.Constraint("DistanceX", 0, 3, -1, 1, Q("8 mm")),
    Sketcher.Constraint("DistanceY", 0, 3, -1, 1, Q("1.75 mm")),
])
pad7 = doc.addObject("PartDesign::Pad", "Pad006")
body.addObject(pad7)
pad7.Profile = sketch10
pad7.Length = 0.75

# Sketch on XY plane
sketch11 = doc.addObject("Sketcher::SketchObject", "Sketch010")
body.addObject(sketch11)
sketch11.AttachmentSupport = (doc.XY_Plane, [""])
sketch11.MapMode = "FlatFace"
sketch11.AttachmentOffset = App.Placement(V(0, 0, 6.75), App.Rotation())
sketch11.addGeometry([
    Part.LineSegment(V(-3, 20, 0), V(-3, 16, 0)),
    Part.LineSegment(V(-3, 16, 0), V(3, 16, 0)),
    Part.LineSegment(V(3, 16, 0), V(3, 20, 0)),
    Part.LineSegment(V(3, 20, 0), V(-3, 20, 0)),
], False)
sketch11.addConstraint([
    Sketcher.Constraint("Coincident", 0, 2, 1, 1),
    Sketcher.Constraint("Coincident", 1, 2, 2, 1),
    Sketcher.Constraint("Coincident", 2, 2, 3, 1),
    Sketcher.Constraint("Coincident", 3, 2, 0, 1),
    Sketcher.Constraint("Vertical", 0),
    Sketcher.Constraint("Horizontal", 1),
    Sketcher.Constraint("Vertical", 2),
    Sketcher.Constraint("Horizontal", 3),
    Sketcher.Constraint("DistanceX", 1, 1, 1, 2, Q("6 mm")),
    Sketcher.Constraint("DistanceY", 0, 2, 0, 1, Q("5 mm")),
    Sketcher.Constraint("DistanceX", 0, 2, -1, 1, Q("3 mm")),
    Sketcher.Constraint("DistanceY", -1, 1, 0, 2, Q("15.5 mm")),
])
pocket4 = doc.addObject("PartDesign::Pocket", "Pocket003")
body.addObject(pocket4)
pocket4.Profile = sketch11
pocket4.Length = 0.5

doc.recompute()
